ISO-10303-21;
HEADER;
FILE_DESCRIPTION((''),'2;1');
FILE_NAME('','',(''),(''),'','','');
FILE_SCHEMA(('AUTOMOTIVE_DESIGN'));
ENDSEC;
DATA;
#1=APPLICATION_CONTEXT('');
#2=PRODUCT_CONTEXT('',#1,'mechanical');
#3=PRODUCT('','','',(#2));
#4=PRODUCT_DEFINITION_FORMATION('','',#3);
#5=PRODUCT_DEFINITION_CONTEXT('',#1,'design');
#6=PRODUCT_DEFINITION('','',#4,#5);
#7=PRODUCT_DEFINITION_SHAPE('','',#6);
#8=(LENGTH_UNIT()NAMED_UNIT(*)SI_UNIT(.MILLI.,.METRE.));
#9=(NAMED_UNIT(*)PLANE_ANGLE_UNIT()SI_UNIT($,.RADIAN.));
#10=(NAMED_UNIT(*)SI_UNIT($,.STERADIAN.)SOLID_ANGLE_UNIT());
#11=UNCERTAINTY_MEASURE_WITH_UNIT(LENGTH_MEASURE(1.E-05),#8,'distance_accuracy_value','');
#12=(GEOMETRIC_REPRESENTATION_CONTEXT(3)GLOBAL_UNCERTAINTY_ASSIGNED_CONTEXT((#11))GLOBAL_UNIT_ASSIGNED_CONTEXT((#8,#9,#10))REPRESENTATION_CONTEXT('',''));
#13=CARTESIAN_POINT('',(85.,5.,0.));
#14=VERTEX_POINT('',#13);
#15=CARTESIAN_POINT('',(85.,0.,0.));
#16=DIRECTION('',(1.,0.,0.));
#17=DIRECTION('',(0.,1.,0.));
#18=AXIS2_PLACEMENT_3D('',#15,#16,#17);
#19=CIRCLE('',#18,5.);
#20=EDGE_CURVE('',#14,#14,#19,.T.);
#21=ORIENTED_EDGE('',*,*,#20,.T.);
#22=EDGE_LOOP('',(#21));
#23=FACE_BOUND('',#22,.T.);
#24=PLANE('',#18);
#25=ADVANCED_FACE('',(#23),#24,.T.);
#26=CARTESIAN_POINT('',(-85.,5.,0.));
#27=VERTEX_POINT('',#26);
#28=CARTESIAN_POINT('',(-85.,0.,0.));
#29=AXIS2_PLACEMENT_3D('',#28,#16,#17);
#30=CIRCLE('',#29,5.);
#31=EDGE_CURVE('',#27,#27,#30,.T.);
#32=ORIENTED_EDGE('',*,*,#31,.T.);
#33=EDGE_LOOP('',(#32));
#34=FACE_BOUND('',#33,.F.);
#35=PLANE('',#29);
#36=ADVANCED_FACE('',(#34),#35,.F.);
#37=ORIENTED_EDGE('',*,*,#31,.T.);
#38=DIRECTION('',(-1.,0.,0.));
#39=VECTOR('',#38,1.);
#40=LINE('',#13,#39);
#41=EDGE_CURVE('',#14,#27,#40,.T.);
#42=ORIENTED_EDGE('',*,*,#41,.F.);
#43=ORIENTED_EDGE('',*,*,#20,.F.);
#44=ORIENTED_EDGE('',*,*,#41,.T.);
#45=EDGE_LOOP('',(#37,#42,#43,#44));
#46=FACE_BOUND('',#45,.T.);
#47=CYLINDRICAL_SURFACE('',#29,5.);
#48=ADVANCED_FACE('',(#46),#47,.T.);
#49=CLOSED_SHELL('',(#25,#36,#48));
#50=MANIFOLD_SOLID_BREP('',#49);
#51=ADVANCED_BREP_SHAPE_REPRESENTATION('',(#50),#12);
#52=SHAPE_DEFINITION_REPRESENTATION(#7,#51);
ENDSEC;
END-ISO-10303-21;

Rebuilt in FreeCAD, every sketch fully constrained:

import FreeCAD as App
import Part
import Sketcher

V = App.Vector
Q = App.Units.Quantity


def add_polygon(sketch, points):
    """Adds a closed chain of lines whose ends are joined by coincident constraints."""
    first, n = sketch.GeometryCount, len(points)
    for a, b in zip(points, points[1:] + points[:1]):
        sketch.addGeometry(Part.LineSegment(App.Vector(*a, 0), App.Vector(*b, 0)), False)
    for i in range(n):
        sketch.addConstraint(Sketcher.Constraint("Coincident", first + i, 2, first + (i + 1) % n, 1))

doc = App.newDocument("Part")
body = doc.addObject("PartDesign::Body", "Body")

# Sketch on XY plane
sketch1 = doc.addObject("Sketcher::SketchObject", "Sketch")
body.addObject(sketch1)
sketch1.AttachmentSupport = (doc.XY_Plane, [""])
sketch1.MapMode = "FlatFace"
add_polygon(sketch1, [(85, 0), (85, 5), (-85, 5), (-85, 0)])  # lines 0-3
sketch1.addConstraint(Sketcher.Constraint("Vertical", 0))
sketch1.addConstraint(Sketcher.Constraint("Horizontal", 1))
sketch1.addConstraint(Sketcher.Constraint("Vertical", 2))
sketch1.addConstraint(Sketcher.Constraint("Horizontal", 3))
sketch1.addConstraint(Sketcher.Constraint("Symmetric", 2, 2, 3, 2, -1, 1))
sketch1.addConstraint(Sketcher.Constraint("DistanceX", 1, 2, 1, 1, Q("170 mm")))
sketch1.addConstraint(Sketcher.Constraint("DistanceY", 0, 1, 0, 2, Q("5 mm")))
revolution = doc.addObject("PartDesign::Revolution", "Revolution")
body.addObject(revolution)
revolution.Profile = sketch1
revolution.ReferenceAxis = (sketch1, ["H_Axis"])
revolution.Angle = 360

doc.recompute()
